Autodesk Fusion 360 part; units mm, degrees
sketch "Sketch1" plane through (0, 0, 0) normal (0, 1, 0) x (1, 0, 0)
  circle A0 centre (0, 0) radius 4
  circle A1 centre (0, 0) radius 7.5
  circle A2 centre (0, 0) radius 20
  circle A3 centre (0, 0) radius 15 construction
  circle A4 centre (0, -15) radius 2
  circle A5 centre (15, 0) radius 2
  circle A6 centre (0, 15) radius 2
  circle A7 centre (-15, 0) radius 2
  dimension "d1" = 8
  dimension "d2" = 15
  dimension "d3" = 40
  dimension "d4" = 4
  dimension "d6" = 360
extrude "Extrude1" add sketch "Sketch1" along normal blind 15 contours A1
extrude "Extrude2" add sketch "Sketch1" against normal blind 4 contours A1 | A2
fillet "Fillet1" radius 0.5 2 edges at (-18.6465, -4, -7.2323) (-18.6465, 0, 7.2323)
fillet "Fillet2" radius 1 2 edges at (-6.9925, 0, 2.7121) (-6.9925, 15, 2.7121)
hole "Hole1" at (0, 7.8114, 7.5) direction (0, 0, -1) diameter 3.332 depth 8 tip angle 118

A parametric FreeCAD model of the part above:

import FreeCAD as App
import Part
import Sketcher


def edges_at(feature, points):
    """Names of the edges that pass closest to the given points."""
    edges = feature.Shape.Edges
    near = lambda p: min(range(len(edges)), key=lambda i: edges[i].distToShape(Part.Vertex(*p))[0])
    return sorted({f"Edge{near(p) + 1}" for p in points})

doc = App.newDocument("Part")
params = doc.addObject("Spreadsheet::Sheet", "Params")
for row, (alias, value) in enumerate([
    ("sketch1_diameter", "15 mm"),
    ("sketch1_diameter2", "8 mm"),
    ("pad1_length", "15 mm"),
    ("sketch2_diameter", "40 mm"),
    ("sketch2_diameter2", "8 mm"),
    ("sketch2_diameter3", "4 mm"),
    ("pad2_length", "4 mm"),
    ("fillet_radius", "0.5 mm"),
    ("fillet2_radius", "1 mm"),
    ("hole_diameter", "3.332 mm"),
    ("hole_depth", "8 mm"),
], start=1):
    params.set(f"A{row}", alias)
    params.set(f"B{row}", "=" + value)
    params.setAlias(f"B{row}", alias)

body = doc.addObject("PartDesign::Body", "Body")

# Sketch on XZ plane
sketch1 = body.newObject("Sketcher::SketchObject", "Sketch")
sketch1.AttachmentSupport = (doc.getObject("XZ_Plane"), [""])
sketch1.MapMode = "FlatFace"
sketch1.addGeometry(Part.Circle(App.Vector(0, 0, 0), App.Vector(0, 0, 1), 7.5), False)
sketch1.addGeometry(Part.Circle(App.Vector(0, 0, 0), App.Vector(0, 0, 1), 4), False)
sketch1.addConstraint(Sketcher.Constraint("Coincident", 0, 3, -1, 1))
sketch1.addConstraint(Sketcher.Constraint("Coincident", 1, 3, -1, 1))
sketch1.addConstraint(Sketcher.Constraint("Diameter", 0, 15.0))
sketch1.addConstraint(Sketcher.Constraint("Diameter", 1, 8.0))
sketch1.setExpression("Constraints[2]", "Params.sketch1_diameter")
sketch1.setExpression("Constraints[3]", "Params.sketch1_diameter2")
pad1 = body.newObject("PartDesign::Pad", "Pad")
pad1.Profile = sketch1
pad1.setExpression("Length", "Params.pad1_length")
pad1.Reversed = True

# Sketch on XZ plane
sketch2 = body.newObject("Sketcher::SketchObject", "Sketch001")
sketch2.AttachmentSupport = (doc.getObject("XZ_Plane"), [""])
sketch2.MapMode = "FlatFace"
sketch2.addGeometry(Part.Circle(App.Vector(0, 0, 0), App.Vector(0, 0, 1), 20), False)
sketch2.addGeometry(Part.Circle(App.Vector(0, 0, 0), App.Vector(0, 0, 1), 4), False)
sketch2.addGeometry(Part.Circle(App.Vector(0, 15, 0), App.Vector(0, 0, 1), 2), False)
sketch2.addGeometry(Part.Circle(App.Vector(-15, 0, 0), App.Vector(0, 0, 1), 2), False)
sketch2.addGeometry(Part.Circle(App.Vector(0, -15, 0), App.Vector(0, 0, 1), 2), False)
sketch2.addGeometry(Part.Circle(App.Vector(15, 0, 0), App.Vector(0, 0, 1), 2), False)
sketch2.addConstraint(Sketcher.Constraint("Coincident", 0, 3, -1, 1))
sketch2.addConstraint(Sketcher.Constraint("Coincident", 1, 3, -1, 1))
sketch2.addConstraint(Sketcher.Constraint("Equal", 2, 3))
sketch2.addConstraint(Sketcher.Constraint("Equal", 3, 4))
sketch2.addConstraint(Sketcher.Constraint("Equal", 4, 5))
sketch2.addConstraint(Sketcher.Constraint("Symmetric", 2, 3, 4, 3, -1, 1))
sketch2.addConstraint(Sketcher.Constraint("Symmetric", 3, 3, 5, 3, -1, 1))
sketch2.addConstraint(Sketcher.Constraint("PointOnObject", 2, 3, -2))
sketch2.addConstraint(Sketcher.Constraint("PointOnObject", 3, 3, -1))
sketch2.addConstraint(Sketcher.Constraint("Diameter", 0, 40.0))
sketch2.addConstraint(Sketcher.Constraint("Diameter", 1, 8.0))
sketch2.addConstraint(Sketcher.Constraint("Diameter", 2, 4.0))
sketch2.addConstraint(Sketcher.Constraint("DistanceY", -1, 1, 2, 3, 15.0))
sketch2.addConstraint(Sketcher.Constraint("DistanceX", 3, 3, -1, 1, 15.0))
sketch2.setExpression("Constraints[9]", "Params.sketch2_diameter")
sketch2.setExpression("Constraints[10]", "Params.sketch2_diameter2")
sketch2.setExpression("Constraints[11]", "Params.sketch2_diameter3")
pad2 = body.newObject("PartDesign::Pad", "Pad001")
pad2.Profile = sketch2
pad2.setExpression("Length", "Params.pad2_length")
doc.recompute()

fillet = body.newObject("PartDesign::Fillet", "Fillet")
fillet.Base = (pad2, edges_at(pad2, [(-18.646, -4, -7.232), (-18.646, 0, 7.232)]))
fillet.setExpression("Radius", "Params.fillet_radius")
doc.recompute()

fillet2 = body.newObject("PartDesign::Fillet", "Fillet001")
fillet2.Base = (fillet, edges_at(fillet, [(-6.992, 0, 2.712), (-6.992, 15, 2.712)]))
fillet2.setExpression("Radius", "Params.fillet2_radius")

# Sketch on XY plane
sketch3 = body.newObject("Sketcher::SketchObject", "Sketch002")
sketch3.AttachmentSupport = (doc.getObject("XY_Plane"), [""])
sketch3.MapMode = "FlatFace"
sketch3.AttachmentOffset = App.Placement(App.Vector(0, 0, 7.5), App.Rotation())
sketch3.addGeometry(Part.Circle(App.Vector(0, 7.8114, 0), App.Vector(0, 0, 1), 1.666), False)
sketch3.addConstraint(Sketcher.Constraint("PointOnObject", 0, 3, -2))
sketch3.addConstraint(Sketcher.Constraint("Diameter", 0, 3.332))
sketch3.addConstraint(Sketcher.Constraint("DistanceY", -1, 1, 0, 3, 7.8114))
doc.recompute()
hole = body.newObject("PartDesign::Hole", "Hole")
hole.Profile = sketch3
hole.ThreadType = "None"
hole.setExpression("Diameter", "Params.hole_diameter")
hole.DepthType = "Dimension"
hole.setExpression("Depth", "Params.hole_depth")
hole.DrillPoint = "Angled"
hole.DrillPointAngle = 118

doc.recompute()
